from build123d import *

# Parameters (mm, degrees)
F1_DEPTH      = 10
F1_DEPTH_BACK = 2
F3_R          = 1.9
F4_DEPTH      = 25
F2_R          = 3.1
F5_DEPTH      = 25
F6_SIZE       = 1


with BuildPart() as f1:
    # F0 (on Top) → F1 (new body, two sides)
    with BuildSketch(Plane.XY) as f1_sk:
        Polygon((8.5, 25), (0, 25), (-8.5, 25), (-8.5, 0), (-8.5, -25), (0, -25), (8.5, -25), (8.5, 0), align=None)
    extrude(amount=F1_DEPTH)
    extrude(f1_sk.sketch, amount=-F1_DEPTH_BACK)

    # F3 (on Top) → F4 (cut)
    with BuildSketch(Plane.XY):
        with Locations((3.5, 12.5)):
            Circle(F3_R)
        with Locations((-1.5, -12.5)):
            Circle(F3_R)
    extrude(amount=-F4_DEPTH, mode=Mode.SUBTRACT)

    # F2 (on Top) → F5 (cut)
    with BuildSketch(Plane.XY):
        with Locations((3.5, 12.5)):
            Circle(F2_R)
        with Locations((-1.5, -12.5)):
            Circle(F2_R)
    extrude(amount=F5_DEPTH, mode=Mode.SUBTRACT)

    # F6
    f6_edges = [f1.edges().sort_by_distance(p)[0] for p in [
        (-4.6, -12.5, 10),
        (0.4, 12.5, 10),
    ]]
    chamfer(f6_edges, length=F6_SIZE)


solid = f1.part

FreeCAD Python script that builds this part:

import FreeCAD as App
import Part
import Sketcher
Q = App.Units.Quantity


def edges_at(feature, points):
    """Names of the edges that pass closest to the given points."""
    edges = feature.Shape.Edges
    near = lambda p: min(range(len(edges)), key=lambda i: edges[i].distToShape(Part.Vertex(*p))[0])
    return sorted({f"Edge{near(p) + 1}" for p in points})

doc = App.newDocument("Part")
body = doc.addObject("PartDesign::Body", "Body")

# Sketch on XY plane
sketch1 = doc.addObject("Sketcher::SketchObject", "Sketch")
body.addObject(sketch1)
sketch1.AttachmentSupport = (doc.XY_Plane, [""])
sketch1.MapMode = "FlatFace"
sketch1.addGeometry(Part.LineSegment(App.Vector(8, 25, 0), App.Vector(-8, 25, 0)), False)
sketch1.addGeometry(Part.LineSegment(App.Vector(-8, 25, 0), App.Vector(-8, -25, 0)), False)
sketch1.addGeometry(Part.LineSegment(App.Vector(-8, -25, 0), App.Vector(8, -25, 0)), False)
sketch1.addGeometry(Part.LineSegment(App.Vector(8, -25, 0), App.Vector(8, 25, 0)), False)
sketch1.addConstraint(Sketcher.Constraint("Coincident", 0, 2, 1, 1))
sketch1.addConstraint(Sketcher.Constraint("Coincident", 1, 2, 2, 1))
sketch1.addConstraint(Sketcher.Constraint("Coincident", 2, 2, 3, 1))
sketch1.addConstraint(Sketcher.Constraint("Coincident", 3, 2, 0, 1))
sketch1.addConstraint(Sketcher.Constraint("Horizontal", 0))
sketch1.addConstraint(Sketcher.Constraint("Vertical", 1))
sketch1.addConstraint(Sketcher.Constraint("Horizontal", 2))
sketch1.addConstraint(Sketcher.Constraint("Vertical", 3))
sketch1.addConstraint(Sketcher.Constraint("Symmetric", 0, 2, 2, 2, -1, 1))
sketch1.addConstraint(Sketcher.Constraint("DistanceX", 0, 2, 0, 1, Q("17 mm")))
sketch1.addConstraint(Sketcher.Constraint("DistanceY", 1, 2, 1, 1, Q("50 mm")))
pad1 = doc.addObject("PartDesign::Pad", "Pad")
body.addObject(pad1)
pad1.Profile = sketch1
pad1.Type = "TwoLengths"
pad1.Length = 10
pad1.Length2 = 2

# Sketch on XY plane
sketch2 = doc.addObject("Sketcher::SketchObject", "Sketch001")
body.addObject(sketch2)
sketch2.AttachmentSupport = (doc.XY_Plane, [""])
sketch2.MapMode = "FlatFace"
sketch2.addGeometry(Part.Circle(App.Vector(3.5, 12.5, 0), App.Vector(0, 0, 1), 1.9), False)
sketch2.addGeometry(Part.Circle(App.Vector(-1.5, -12.5, 0), App.Vector(0, 0, 1), 1.9), False)
sketch2.addConstraint(Sketcher.Constraint("Equal", 0, 1))
sketch2.addConstraint(Sketcher.Constraint("Diameter", 0, Q("3.8 mm")))
sketch2.addConstraint(Sketcher.Constraint("DistanceX", 1, 3, 0, 3, Q("5 mm")))
sketch2.addConstraint(Sketcher.Constraint("DistanceY", 1, 3, 0, 3, Q("25 mm")))
sketch2.addConstraint(Sketcher.Constraint("DistanceX", -1, 1, 0, 3, Q("3.5 mm")))
sketch2.addConstraint(Sketcher.Constraint("DistanceY", -1, 1, 0, 3, Q("12.5 mm")))
pocket1 = doc.addObject("PartDesign::Pocket", "Pocket")
body.addObject(pocket1)
pocket1.Profile = sketch2
pocket1.Length = 25

# Sketch on XY plane
sketch3 = doc.addObject("Sketcher::SketchObject", "Sketch002")
body.addObject(sketch3)
sketch3.AttachmentSupport = (doc.XY_Plane, [""])
sketch3.MapMode = "FlatFace"
sketch3.addGeometry(Part.Circle(App.Vector(3.5, 12.5, 0), App.Vector(0, 0, 1), 3.1), False)
sketch3.addGeometry(Part.Circle(App.Vector(-1.5, -12.5, 0), App.Vector(0, 0, 1), 3.1), False)
sketch3.addConstraint(Sketcher.Constraint("Equal", 0, 1))
sketch3.addConstraint(Sketcher.Constraint("Diameter", 0, Q("6.2 mm")))
sketch3.addConstraint(Sketcher.Constraint("DistanceX", 1, 3, 0, 3, Q("5 mm")))
sketch3.addConstraint(Sketcher.Constraint("DistanceY", 1, 3, 0, 3, Q("25 mm")))
sketch3.addConstraint(Sketcher.Constraint("DistanceX", -1, 1, 0, 3, Q("3.5 mm")))
sketch3.addConstraint(Sketcher.Constraint("DistanceY", -1, 1, 0, 3, Q("12.5 mm")))
pocket2 = doc.addObject("PartDesign::Pocket", "Pocket001")
body.addObject(pocket2)
pocket2.Profile = sketch3
pocket2.Length = 25
pocket2.Reversed = True
doc.recompute()

chamfer = doc.addObject("PartDesign::Chamfer", "Chamfer")
body.addObject(chamfer)
chamfer.Base = (pocket2, edges_at(pocket2, [(-4.6, -12.5, 10), (0.4, 12.5, 10)]))
chamfer.Size = 1

doc.recompute()
